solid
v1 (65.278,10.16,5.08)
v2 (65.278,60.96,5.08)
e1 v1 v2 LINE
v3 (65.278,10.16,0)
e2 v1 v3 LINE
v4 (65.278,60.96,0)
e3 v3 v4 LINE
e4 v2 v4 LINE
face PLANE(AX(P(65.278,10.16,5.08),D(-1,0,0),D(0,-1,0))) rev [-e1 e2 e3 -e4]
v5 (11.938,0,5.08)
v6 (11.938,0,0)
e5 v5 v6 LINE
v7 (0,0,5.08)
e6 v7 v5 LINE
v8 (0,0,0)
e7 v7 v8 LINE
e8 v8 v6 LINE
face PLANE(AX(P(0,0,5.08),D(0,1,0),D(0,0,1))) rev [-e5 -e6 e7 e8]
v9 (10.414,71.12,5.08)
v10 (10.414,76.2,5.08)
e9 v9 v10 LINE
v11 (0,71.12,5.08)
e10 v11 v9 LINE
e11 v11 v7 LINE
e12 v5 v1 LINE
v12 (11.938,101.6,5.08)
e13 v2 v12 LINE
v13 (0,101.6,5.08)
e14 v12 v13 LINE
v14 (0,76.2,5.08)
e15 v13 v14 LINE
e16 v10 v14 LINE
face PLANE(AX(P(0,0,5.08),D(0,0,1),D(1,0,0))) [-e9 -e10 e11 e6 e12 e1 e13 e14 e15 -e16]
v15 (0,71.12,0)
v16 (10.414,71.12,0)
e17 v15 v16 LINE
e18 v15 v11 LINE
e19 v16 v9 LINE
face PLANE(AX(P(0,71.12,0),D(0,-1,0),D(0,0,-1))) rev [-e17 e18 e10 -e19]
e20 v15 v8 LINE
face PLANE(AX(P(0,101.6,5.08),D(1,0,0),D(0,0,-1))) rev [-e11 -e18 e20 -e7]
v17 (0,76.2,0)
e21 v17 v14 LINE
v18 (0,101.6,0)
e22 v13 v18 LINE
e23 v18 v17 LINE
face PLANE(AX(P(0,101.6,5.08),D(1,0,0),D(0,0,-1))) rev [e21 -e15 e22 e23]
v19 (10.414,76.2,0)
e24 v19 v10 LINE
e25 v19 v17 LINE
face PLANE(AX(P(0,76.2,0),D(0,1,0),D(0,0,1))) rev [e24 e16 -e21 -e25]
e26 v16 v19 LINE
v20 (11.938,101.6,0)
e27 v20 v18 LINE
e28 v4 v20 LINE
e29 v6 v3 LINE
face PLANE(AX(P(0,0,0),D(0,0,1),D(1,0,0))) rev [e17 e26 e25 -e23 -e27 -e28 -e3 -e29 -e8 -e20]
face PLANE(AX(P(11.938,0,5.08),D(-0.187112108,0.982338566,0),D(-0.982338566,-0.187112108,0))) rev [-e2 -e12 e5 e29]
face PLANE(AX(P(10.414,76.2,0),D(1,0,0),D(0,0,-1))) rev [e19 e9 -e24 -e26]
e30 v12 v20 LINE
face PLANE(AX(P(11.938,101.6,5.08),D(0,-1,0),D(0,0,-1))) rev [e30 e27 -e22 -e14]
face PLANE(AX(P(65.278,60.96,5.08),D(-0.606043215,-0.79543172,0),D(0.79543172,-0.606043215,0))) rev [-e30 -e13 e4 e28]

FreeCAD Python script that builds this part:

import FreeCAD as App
import Part
import Sketcher

V = App.Vector
Q = App.Units.Quantity


def add_polygon(sketch, points):
    """Adds a closed chain of lines whose ends are joined by coincident constraints."""
    first, n = sketch.GeometryCount, len(points)
    for a, b in zip(points, points[1:] + points[:1]):
        sketch.addGeometry(Part.LineSegment(App.Vector(*a, 0), App.Vector(*b, 0)), False)
    for i in range(n):
        sketch.addConstraint(Sketcher.Constraint("Coincident", first + i, 2, first + (i + 1) % n, 1))

doc = App.newDocument("Part")
body = doc.addObject("PartDesign::Body", "Body")

# Sketch on XY plane
sketch1 = body.newObject("Sketcher::SketchObject", "Sketch")
sketch1.AttachmentSupport = (doc.getObject("XY_Plane"), [""])
sketch1.MapMode = "FlatFace"
add_polygon(sketch1, [(0, 0), (11.938, 0), (65.278, 10.16), (65.278, 60.96), (11.938, 101.6), (0, 101.6)])  # lines 0-5
sketch1.addConstraint([
    Sketcher.Constraint("Horizontal", 0),
    Sketcher.Constraint("Vertical", 2),
    Sketcher.Constraint("Horizontal", 4),
    Sketcher.Constraint("Vertical", 5),
    Sketcher.Constraint("Coincident", 5, 2, -1, 1),
    Sketcher.Constraint("Vertical", 0, 2, 3, 2),
    Sketcher.Constraint("DistanceY", 2, 1, 2, 2, Q("2 in")),
    Sketcher.Constraint("DistanceY", 5, 2, 5, 1, Q("4 in")),
    Sketcher.Constraint("DistanceX", 0, 1, 0, 2, Q("0.47 in")),
    Sketcher.Constraint("DistanceY", -1, 1, 1, 2, Q("0.4 in")),
    Sketcher.Constraint("DistanceX", 0, 2, 1, 2, Q("2.1 in")),
])
pad1 = body.newObject("PartDesign::Pad", "Pad")
pad1.Profile = sketch1
pad1.Length = Q("0.2 in")

# Sketch on XY plane
sketch2 = body.newObject("Sketcher::SketchObject", "Sketch001")
sketch2.AttachmentSupport = (doc.getObject("XY_Plane"), [""])
sketch2.MapMode = "FlatFace"
sketch2.AttachmentOffset = App.Placement(V(0, 0, 0.2 * 25.4), App.Rotation())
add_polygon(sketch2, [(0, 76.2), (0, 71.12), (10.414, 71.12), (10.414, 76.2)])  # lines 0-3
sketch2.addConstraint([
    Sketcher.Constraint("Vertical", 0),
    Sketcher.Constraint("Horizontal", 1),
    Sketcher.Constraint("Vertical", 2),
    Sketcher.Constraint("Horizontal", 3),
    Sketcher.Constraint("PointOnObject", 0, 2, -2),
    Sketcher.Constraint("DistanceY", 0, 2, 0, 1, Q("0.2 in")),
    Sketcher.Constraint("DistanceY", -1, 1, 2, 2, Q("3 in")),
    Sketcher.Constraint("DistanceX", 1, 1, 1, 2, Q("0.41 in")),
])
pocket1 = body.newObject("PartDesign::Pocket", "Pocket")
pocket1.Profile = sketch2
pocket1.Type = "ThroughAll"

doc.recompute()
